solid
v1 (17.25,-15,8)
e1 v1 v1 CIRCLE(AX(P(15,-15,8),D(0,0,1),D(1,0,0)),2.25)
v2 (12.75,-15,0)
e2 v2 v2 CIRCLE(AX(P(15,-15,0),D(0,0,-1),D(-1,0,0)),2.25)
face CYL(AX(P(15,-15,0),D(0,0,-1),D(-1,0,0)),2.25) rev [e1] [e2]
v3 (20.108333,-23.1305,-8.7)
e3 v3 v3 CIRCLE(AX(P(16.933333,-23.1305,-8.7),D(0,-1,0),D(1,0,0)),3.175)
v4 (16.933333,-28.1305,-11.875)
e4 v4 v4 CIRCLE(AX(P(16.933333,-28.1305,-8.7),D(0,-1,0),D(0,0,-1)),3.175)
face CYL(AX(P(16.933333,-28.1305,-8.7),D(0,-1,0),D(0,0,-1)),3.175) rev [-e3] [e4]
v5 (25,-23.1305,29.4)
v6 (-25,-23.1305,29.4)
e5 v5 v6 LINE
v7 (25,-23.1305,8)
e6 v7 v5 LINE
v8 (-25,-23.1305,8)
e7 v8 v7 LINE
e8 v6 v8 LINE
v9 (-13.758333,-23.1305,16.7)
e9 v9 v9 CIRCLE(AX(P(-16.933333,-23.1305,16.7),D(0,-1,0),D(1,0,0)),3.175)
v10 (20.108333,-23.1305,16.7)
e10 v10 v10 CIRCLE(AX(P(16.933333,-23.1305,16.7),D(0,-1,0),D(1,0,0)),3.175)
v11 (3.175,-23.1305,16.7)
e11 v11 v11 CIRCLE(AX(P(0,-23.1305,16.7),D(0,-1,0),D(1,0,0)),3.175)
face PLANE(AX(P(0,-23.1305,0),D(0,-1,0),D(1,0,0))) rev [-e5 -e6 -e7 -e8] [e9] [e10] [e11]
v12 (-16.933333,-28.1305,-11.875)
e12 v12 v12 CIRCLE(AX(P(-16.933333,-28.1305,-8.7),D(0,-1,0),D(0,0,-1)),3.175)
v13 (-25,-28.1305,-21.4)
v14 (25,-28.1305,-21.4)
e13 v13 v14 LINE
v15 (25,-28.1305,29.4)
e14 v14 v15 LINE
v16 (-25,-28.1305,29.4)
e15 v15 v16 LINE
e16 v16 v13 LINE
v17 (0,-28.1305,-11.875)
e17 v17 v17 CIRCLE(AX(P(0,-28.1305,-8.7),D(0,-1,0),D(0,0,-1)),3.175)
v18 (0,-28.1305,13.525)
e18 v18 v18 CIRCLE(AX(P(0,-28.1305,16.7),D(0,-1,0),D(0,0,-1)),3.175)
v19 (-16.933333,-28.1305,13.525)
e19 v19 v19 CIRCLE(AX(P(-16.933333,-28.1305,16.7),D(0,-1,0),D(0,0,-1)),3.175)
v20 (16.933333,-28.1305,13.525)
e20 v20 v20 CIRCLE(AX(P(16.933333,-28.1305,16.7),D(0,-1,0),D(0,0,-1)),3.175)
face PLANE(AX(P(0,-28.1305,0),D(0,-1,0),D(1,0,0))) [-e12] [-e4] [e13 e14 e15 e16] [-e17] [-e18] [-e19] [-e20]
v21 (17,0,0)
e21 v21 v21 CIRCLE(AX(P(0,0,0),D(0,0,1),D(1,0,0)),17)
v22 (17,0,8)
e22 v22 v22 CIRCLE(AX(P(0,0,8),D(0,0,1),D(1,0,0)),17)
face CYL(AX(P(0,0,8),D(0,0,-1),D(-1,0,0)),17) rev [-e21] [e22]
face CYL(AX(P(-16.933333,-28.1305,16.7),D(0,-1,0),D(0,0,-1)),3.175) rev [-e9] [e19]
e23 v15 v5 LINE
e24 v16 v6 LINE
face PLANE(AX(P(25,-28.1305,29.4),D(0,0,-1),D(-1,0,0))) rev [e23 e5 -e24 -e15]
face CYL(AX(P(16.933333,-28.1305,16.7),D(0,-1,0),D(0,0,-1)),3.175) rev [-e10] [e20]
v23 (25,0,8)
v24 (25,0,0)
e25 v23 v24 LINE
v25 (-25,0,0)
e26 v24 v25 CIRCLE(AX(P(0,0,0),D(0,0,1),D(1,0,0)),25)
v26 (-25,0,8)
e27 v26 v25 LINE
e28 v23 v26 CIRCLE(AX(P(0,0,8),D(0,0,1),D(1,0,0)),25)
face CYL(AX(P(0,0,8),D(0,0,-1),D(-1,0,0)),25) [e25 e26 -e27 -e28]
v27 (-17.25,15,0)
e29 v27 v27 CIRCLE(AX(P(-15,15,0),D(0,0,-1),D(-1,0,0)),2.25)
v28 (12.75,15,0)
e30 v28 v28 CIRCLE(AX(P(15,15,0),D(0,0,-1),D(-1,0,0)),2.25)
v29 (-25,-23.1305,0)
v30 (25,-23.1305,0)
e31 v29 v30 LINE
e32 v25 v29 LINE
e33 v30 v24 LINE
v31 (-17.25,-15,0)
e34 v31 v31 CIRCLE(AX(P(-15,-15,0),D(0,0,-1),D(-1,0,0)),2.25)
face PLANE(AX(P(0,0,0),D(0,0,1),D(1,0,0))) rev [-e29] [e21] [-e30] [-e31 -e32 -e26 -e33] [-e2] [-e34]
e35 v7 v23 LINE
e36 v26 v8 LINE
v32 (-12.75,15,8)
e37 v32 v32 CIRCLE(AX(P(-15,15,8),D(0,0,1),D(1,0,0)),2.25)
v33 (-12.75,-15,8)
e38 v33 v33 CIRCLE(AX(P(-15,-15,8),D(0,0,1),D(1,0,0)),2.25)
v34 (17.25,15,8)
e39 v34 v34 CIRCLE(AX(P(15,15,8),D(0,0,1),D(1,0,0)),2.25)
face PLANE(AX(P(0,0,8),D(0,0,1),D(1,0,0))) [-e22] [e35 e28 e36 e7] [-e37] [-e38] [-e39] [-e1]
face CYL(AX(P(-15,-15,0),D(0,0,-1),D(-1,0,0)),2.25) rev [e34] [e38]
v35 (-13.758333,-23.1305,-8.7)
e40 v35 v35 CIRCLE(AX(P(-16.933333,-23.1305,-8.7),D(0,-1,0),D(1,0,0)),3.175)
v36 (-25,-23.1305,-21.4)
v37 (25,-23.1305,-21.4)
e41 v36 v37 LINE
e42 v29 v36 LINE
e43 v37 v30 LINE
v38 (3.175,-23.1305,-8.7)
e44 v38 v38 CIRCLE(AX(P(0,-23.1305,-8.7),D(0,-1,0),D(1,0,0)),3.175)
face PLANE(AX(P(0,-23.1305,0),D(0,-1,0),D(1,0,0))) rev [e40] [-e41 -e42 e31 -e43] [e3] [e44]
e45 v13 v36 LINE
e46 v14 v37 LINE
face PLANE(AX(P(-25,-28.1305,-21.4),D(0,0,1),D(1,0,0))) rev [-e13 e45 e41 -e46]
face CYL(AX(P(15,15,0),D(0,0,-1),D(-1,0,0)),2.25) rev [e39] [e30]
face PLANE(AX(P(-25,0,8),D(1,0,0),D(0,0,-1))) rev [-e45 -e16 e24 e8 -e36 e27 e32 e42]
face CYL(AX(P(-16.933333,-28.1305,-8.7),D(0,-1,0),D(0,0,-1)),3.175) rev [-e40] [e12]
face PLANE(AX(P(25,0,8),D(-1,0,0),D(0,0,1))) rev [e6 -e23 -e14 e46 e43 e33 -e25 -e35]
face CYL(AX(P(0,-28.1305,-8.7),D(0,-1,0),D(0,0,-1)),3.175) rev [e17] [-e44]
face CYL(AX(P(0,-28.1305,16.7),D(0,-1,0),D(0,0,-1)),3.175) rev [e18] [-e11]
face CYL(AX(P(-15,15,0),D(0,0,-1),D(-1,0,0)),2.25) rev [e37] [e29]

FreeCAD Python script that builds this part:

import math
import FreeCAD as App
import Part
import Sketcher

doc = App.newDocument("Part")
params = doc.addObject("Spreadsheet::Sheet", "Params")
for row, (alias, value) in enumerate([
    ("sketch1_diameter", "34 mm"),
    ("sketch1_radius", "25 mm"),
    ("pad1_length", "8 mm"),
    ("sketch2_width", "50 mm"),
    ("sketch2_height", "50.8 mm"),
    ("pad2_length", "5 mm"),
    ("sketch3_diameter", "6.35 mm"),
    ("hole_diameter", "6.35 mm"),
    ("sketch4_diameter", "4.5 mm"),
    ("hole2_diameter", "4.5 mm"),
], start=1):
    params.set(f"A{row}", alias)
    params.set(f"B{row}", "=" + value)
    params.setAlias(f"B{row}", alias)

body = doc.addObject("PartDesign::Body", "Body")

# Sketch on XY plane
sketch1 = body.newObject("Sketcher::SketchObject", "Sketch")
sketch1.AttachmentSupport = (doc.getObject("XY_Plane"), [""])
sketch1.MapMode = "FlatFace"
sketch1.addGeometry(Part.LineSegment(App.Vector(25, -23, 0), App.Vector(25, 0, 0)), False)
sketch1.addGeometry(Part.ArcOfCircle(Part.Circle(App.Vector(0, 0, 0), App.Vector(0, 0, 1), 25), math.radians(0), math.radians(180)), False)
sketch1.addGeometry(Part.LineSegment(App.Vector(-25, 0, 0), App.Vector(-25, -23, 0)), False)
sketch1.addGeometry(Part.LineSegment(App.Vector(-25, -23, 0), App.Vector(25, -23, 0)), False)
sketch1.addGeometry(Part.Circle(App.Vector(0, 0, 0), App.Vector(0, 0, 1), 17), False)
sketch1.addConstraint(Sketcher.Constraint("Tangent", 0, 2, 1, 1))
sketch1.addConstraint(Sketcher.Constraint("Tangent", 1, 2, 2, 1))
sketch1.addConstraint(Sketcher.Constraint("Coincident", 2, 2, 3, 1))
sketch1.addConstraint(Sketcher.Constraint("Coincident", 3, 2, 0, 1))
sketch1.addConstraint(Sketcher.Constraint("Vertical", 0))
sketch1.addConstraint(Sketcher.Constraint("Vertical", 2))
sketch1.addConstraint(Sketcher.Constraint("Horizontal", 3))
sketch1.addConstraint(Sketcher.Constraint("Coincident", 1, 3, -1, 1))
sketch1.addConstraint(Sketcher.Constraint("Coincident", 4, 3, -1, 1))
sketch1.addConstraint(Sketcher.Constraint("Diameter", 4, 34.0))
sketch1.addConstraint(Sketcher.Constraint("Radius", 1, 25.0))
sketch1.addConstraint(Sketcher.Constraint("DistanceY", 0, 1, 0, 2, 23.1305))
sketch1.setExpression("Constraints[9]", "Params.sketch1_diameter")
sketch1.setExpression("Constraints[10]", "Params.sketch1_radius")
pad1 = body.newObject("PartDesign::Pad", "Pad")
pad1.Profile = sketch1
pad1.setExpression("Length", "Params.pad1_length")

# Sketch on XZ plane
sketch2 = body.newObject("Sketcher::SketchObject", "Sketch001")
sketch2.AttachmentSupport = (doc.getObject("XZ_Plane"), [""])
sketch2.MapMode = "FlatFace"
sketch2.AttachmentOffset = App.Placement(App.Vector(0, 0, 23.1305), App.Rotation())
sketch2.addGeometry(Part.LineSegment(App.Vector(-25, 29, 0), App.Vector(-25, -21, 0)), False)
sketch2.addGeometry(Part.LineSegment(App.Vector(-25, -21, 0), App.Vector(25, -21, 0)), False)
sketch2.addGeometry(Part.LineSegment(App.Vector(25, -21, 0), App.Vector(25, 29, 0)), False)
sketch2.addGeometry(Part.LineSegment(App.Vector(25, 29, 0), App.Vector(-25, 29, 0)), False)
sketch2.addConstraint(Sketcher.Constraint("Coincident", 0, 2, 1, 1))
sketch2.addConstraint(Sketcher.Constraint("Coincident", 1, 2, 2, 1))
sketch2.addConstraint(Sketcher.Constraint("Coincident", 2, 2, 3, 1))
sketch2.addConstraint(Sketcher.Constraint("Coincident", 3, 2, 0, 1))
sketch2.addConstraint(Sketcher.Constraint("Vertical", 0))
sketch2.addConstraint(Sketcher.Constraint("Horizontal", 1))
sketch2.addConstraint(Sketcher.Constraint("Vertical", 2))
sketch2.addConstraint(Sketcher.Constraint("Horizontal", 3))
sketch2.addConstraint(Sketcher.Constraint("DistanceX", 1, 1, 1, 2, 50.0))
sketch2.addConstraint(Sketcher.Constraint("DistanceY", 0, 2, 0, 1, 50.8))
sketch2.addConstraint(Sketcher.Constraint("DistanceX", 0, 2, -1, 1, 25.0))
sketch2.addConstraint(Sketcher.Constraint("DistanceY", 0, 2, -1, 1, 21.4))
sketch2.setExpression("Constraints[8]", "Params.sketch2_width")
sketch2.setExpression("Constraints[9]", "Params.sketch2_height")
pad2 = body.newObject("PartDesign::Pad", "Pad001")
pad2.Profile = sketch2
pad2.setExpression("Length", "Params.pad2_length")

# Sketch on XZ plane
sketch3 = body.newObject("Sketcher::SketchObject", "Sketch002")
sketch3.AttachmentSupport = (doc.getObject("XZ_Plane"), [""])
sketch3.MapMode = "FlatFace"
sketch3.AttachmentOffset = App.Placement(App.Vector(0, 0, 28.1305), App.Rotation())
sketch3.addGeometry(Part.Circle(App.Vector(-16.9, 16.7, 0), App.Vector(0, 0, 1), 3.2), False)
sketch3.addGeometry(Part.Circle(App.Vector(0, 16.7, 0), App.Vector(0, 0, 1), 3.2), False)
sketch3.addGeometry(Part.Circle(App.Vector(-16.9, -8.7, 0), App.Vector(0, 0, 1), 3.2), False)
sketch3.addGeometry(Part.Circle(App.Vector(0, -8.7, 0), App.Vector(0, 0, 1), 3.2), False)
sketch3.addGeometry(Part.Circle(App.Vector(16.9, 16.7, 0), App.Vector(0, 0, 1), 3.2), False)
sketch3.addGeometry(Part.Circle(App.Vector(16.9, -8.7, 0), App.Vector(0, 0, 1), 3.2), False)
sketch3.addConstraint(Sketcher.Constraint("Equal", 0, 1))
sketch3.addConstraint(Sketcher.Constraint("Equal", 1, 2))
sketch3.addConstraint(Sketcher.Constraint("Equal", 2, 3))
sketch3.addConstraint(Sketcher.Constraint("Equal", 3, 4))
sketch3.addConstraint(Sketcher.Constraint("Equal", 4, 5))
sketch3.addConstraint(Sketcher.Constraint("Symmetric", 0, 3, 4, 3, -2))
sketch3.addConstraint(Sketcher.Constraint("Symmetric", 2, 3, 5, 3, -2))
sketch3.addConstraint(Sketcher.Constraint("PointOnObject", 1, 3, -2))
sketch3.addConstraint(Sketcher.Constraint("PointOnObject", 3, 3, -2))
sketch3.addConstraint(Sketcher.Constraint("Horizontal", 0, 3, 1, 3))
sketch3.addConstraint(Sketcher.Constraint("Horizontal", 2, 3, 3, 3))
sketch3.addConstraint(Sketcher.Constraint("Vertical", 0, 3, 2, 3))
sketch3.addConstraint(Sketcher.Constraint("Diameter", 0, 6.35))
sketch3.addConstraint(Sketcher.Constraint("DistanceY", -1, 1, 0, 3, 16.7))
sketch3.addConstraint(Sketcher.Constraint("DistanceY", 2, 3, -1, 1, 8.7))
sketch3.addConstraint(Sketcher.Constraint("DistanceX", 0, 3, -1, 1, 16.933333))
sketch3.setExpression("Constraints[12]", "Params.sketch3_diameter")
doc.recompute()
hole = body.newObject("PartDesign::Hole", "Hole")
hole.Profile = sketch3
hole.ThreadType = "None"
hole.setExpression("Diameter", "Params.hole_diameter")
hole.DepthType = "ThroughAll"

# Sketch on XY plane
sketch4 = body.newObject("Sketcher::SketchObject", "Sketch003")
sketch4.AttachmentSupport = (doc.getObject("XY_Plane"), [""])
sketch4.MapMode = "FlatFace"
sketch4.addGeometry(Part.Circle(App.Vector(15, 15, 0), App.Vector(0, 0, 1), 2.2), False)
sketch4.addGeometry(Part.Circle(App.Vector(-15, 15, 0), App.Vector(0, 0, 1), 2.2), False)
sketch4.addGeometry(Part.Circle(App.Vector(15, -15, 0), App.Vector(0, 0, 1), 2.2), False)
sketch4.addGeometry(Part.Circle(App.Vector(-15, -15, 0), App.Vector(0, 0, 1), 2.2), False)
sketch4.addConstraint(Sketcher.Constraint("Equal", 0, 1))
sketch4.addConstraint(Sketcher.Constraint("Equal", 1, 2))
sketch4.addConstraint(Sketcher.Constraint("Equal", 2, 3))
sketch4.addConstraint(Sketcher.Constraint("Symmetric", 1, 3, 2, 3, -1, 1))
sketch4.addConstraint(Sketcher.Constraint("Symmetric", 0, 3, 3, 3, -1, 1))
sketch4.addConstraint(Sketcher.Constraint("Symmetric", 0, 3, 1, 3, -2))
sketch4.addConstraint(Sketcher.Constraint("Diameter", 0, 4.5))
sketch4.addConstraint(Sketcher.Constraint("DistanceX", -1, 1, 0, 3, 15.0))
sketch4.addConstraint(Sketcher.Constraint("DistanceY", -1, 1, 0, 3, 15.0))
sketch4.setExpression("Constraints[6]", "Params.sketch4_diameter")
doc.recompute()
hole2 = body.newObject("PartDesign::Hole", "Hole001")
hole2.Profile = sketch4
hole2.ThreadType = "None"
hole2.setExpression("Diameter", "Params.hole2_diameter")
hole2.DepthType = "ThroughAll"
hole2.Reversed = True

doc.recompute()
